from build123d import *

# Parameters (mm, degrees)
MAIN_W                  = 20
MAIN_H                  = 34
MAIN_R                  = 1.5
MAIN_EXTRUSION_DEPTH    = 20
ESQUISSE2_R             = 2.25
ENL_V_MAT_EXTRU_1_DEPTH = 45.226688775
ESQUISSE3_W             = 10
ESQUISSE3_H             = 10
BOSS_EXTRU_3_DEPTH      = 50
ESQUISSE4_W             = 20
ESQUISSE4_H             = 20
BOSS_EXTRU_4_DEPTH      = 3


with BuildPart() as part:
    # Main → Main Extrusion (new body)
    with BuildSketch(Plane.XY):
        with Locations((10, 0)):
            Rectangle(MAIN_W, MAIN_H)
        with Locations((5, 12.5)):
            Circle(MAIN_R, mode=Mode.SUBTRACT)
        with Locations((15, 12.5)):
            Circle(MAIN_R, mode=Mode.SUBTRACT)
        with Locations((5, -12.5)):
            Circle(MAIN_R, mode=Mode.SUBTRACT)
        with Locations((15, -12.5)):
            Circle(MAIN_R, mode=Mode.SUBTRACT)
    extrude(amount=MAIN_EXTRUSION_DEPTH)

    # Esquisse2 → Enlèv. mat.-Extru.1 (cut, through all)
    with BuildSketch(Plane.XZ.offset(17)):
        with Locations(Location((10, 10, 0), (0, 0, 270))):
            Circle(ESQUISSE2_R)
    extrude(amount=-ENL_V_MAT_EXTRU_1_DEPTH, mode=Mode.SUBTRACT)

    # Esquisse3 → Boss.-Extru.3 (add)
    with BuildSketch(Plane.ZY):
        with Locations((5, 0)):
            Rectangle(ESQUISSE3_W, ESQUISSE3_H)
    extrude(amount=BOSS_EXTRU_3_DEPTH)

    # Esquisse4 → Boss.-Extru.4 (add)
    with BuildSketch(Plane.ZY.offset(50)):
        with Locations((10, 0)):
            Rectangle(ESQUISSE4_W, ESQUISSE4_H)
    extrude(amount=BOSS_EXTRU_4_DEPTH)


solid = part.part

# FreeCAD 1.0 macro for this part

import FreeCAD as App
import Part
import Sketcher


def add_polygon(sketch, points):
    """Adds a closed chain of lines whose ends are joined by coincident constraints."""
    first, n = sketch.GeometryCount, len(points)
    for a, b in zip(points, points[1:] + points[:1]):
        sketch.addGeometry(Part.LineSegment(App.Vector(*a, 0), App.Vector(*b, 0)), False)
    for i in range(n):
        sketch.addConstraint(Sketcher.Constraint("Coincident", first + i, 2, first + (i + 1) % n, 1))

doc = App.newDocument("Part")
body = doc.addObject("PartDesign::Body", "Body")

# Sketch on XY plane
sketch1 = body.newObject("Sketcher::SketchObject", "Sketch")
sketch1.AttachmentSupport = (doc.getObject("XY_Plane"), [""])
sketch1.MapMode = "FlatFace"
add_polygon(sketch1, [(0, 17), (0, -17), (20, -17), (20, 17)])  # lines 0-3
sketch1.addGeometry(Part.Circle(App.Vector(5, -12.5, 0), App.Vector(0, 0, 1), 1.5), False)  # 4
sketch1.addGeometry(Part.Circle(App.Vector(15, -12.5, 0), App.Vector(0, 0, 1), 1.5), False)  # 5
sketch1.addGeometry(Part.Circle(App.Vector(5, 12.5, 0), App.Vector(0, 0, 1), 1.5), False)  # 6
sketch1.addGeometry(Part.Circle(App.Vector(15, 12.5, 0), App.Vector(0, 0, 1), 1.5), False)  # 7
sketch1.addConstraint(Sketcher.Constraint("Vertical", 0))
sketch1.addConstraint(Sketcher.Constraint("Horizontal", 1))
sketch1.addConstraint(Sketcher.Constraint("Vertical", 2))
sketch1.addConstraint(Sketcher.Constraint("Horizontal", 3))
sketch1.addConstraint(Sketcher.Constraint("Equal", 4, 5))
sketch1.addConstraint(Sketcher.Constraint("Equal", 5, 6))
sketch1.addConstraint(Sketcher.Constraint("Equal", 6, 7))
sketch1.addConstraint(Sketcher.Constraint("Symmetric", 0, 2, 3, 2, -1, 1))
sketch1.addConstraint(Sketcher.Constraint("Symmetric", 4, 3, 6, 3, -1))
sketch1.addConstraint(Sketcher.Constraint("Symmetric", 5, 3, 7, 3, -1))
sketch1.addConstraint(Sketcher.Constraint("Horizontal", 4, 3, 5, 3))
sketch1.addConstraint(Sketcher.Constraint("Diameter", 4, 3.0))
sketch1.addConstraint(Sketcher.Constraint("DistanceX", 1, 1, 1, 2, 20.0))
sketch1.addConstraint(Sketcher.Constraint("DistanceY", 0, 2, 0, 1, 34.0))
sketch1.addConstraint(Sketcher.Constraint("DistanceX", -1, 1, 4, 3, 5.0))
sketch1.addConstraint(Sketcher.Constraint("DistanceX", -1, 1, 5, 3, 15.0))
sketch1.addConstraint(Sketcher.Constraint("DistanceY", 4, 3, 6, 3, 25.0))
pad1 = body.newObject("PartDesign::Pad", "Pad")
pad1.Profile = sketch1
pad1.Length = 20

# Sketch on XZ plane
sketch2 = body.newObject("Sketcher::SketchObject", "Sketch001")
sketch2.AttachmentSupport = (doc.getObject("XZ_Plane"), [""])
sketch2.MapMode = "FlatFace"
sketch2.AttachmentOffset = App.Placement(App.Vector(0, 0, 17), App.Rotation())
sketch2.addGeometry(Part.Circle(App.Vector(10, 10, 0), App.Vector(0, 0, 1), 2.2), False)
sketch2.addConstraint(Sketcher.Constraint("Diameter", 0, 4.5))
sketch2.addConstraint(Sketcher.Constraint("DistanceX", -1, 1, 0, 3, 10.0))
sketch2.addConstraint(Sketcher.Constraint("DistanceY", -1, 1, 0, 3, 10.0))
pocket1 = body.newObject("PartDesign::Pocket", "Pocket")
pocket1.Profile = sketch2
pocket1.Type = "ThroughAll"

# Sketch on YZ plane
sketch3 = body.newObject("Sketcher::SketchObject", "Sketch002")
sketch3.AttachmentSupport = (doc.getObject("YZ_Plane"), [""])
sketch3.MapMode = "FlatFace"
add_polygon(sketch3, [(5, 0), (-5, 0), (-5, 10), (5, 10)])  # lines 0-3
sketch3.addConstraint(Sketcher.Constraint("Horizontal", 0))
sketch3.addConstraint(Sketcher.Constraint("Vertical", 1))
sketch3.addConstraint(Sketcher.Constraint("Horizontal", 2))
sketch3.addConstraint(Sketcher.Constraint("Vertical", 3))
sketch3.addConstraint(Sketcher.Constraint("Symmetric", 0, 2, 3, 2, -1, 1))
sketch3.addConstraint(Sketcher.Constraint("Equal", 2, 1))
sketch3.addConstraint(Sketcher.Constraint("DistanceX", 0, 2, 0, 1, 10.0))
pad2 = body.newObject("PartDesign::Pad", "Pad001")
pad2.Profile = sketch3
pad2.Length = 50
pad2.Reversed = True

# Sketch on YZ plane
sketch4 = body.newObject("Sketcher::SketchObject", "Sketch003")
sketch4.AttachmentSupport = (doc.getObject("YZ_Plane"), [""])
sketch4.MapMode = "FlatFace"
sketch4.AttachmentOffset = App.Placement(App.Vector(0, 0, -50), App.Rotation())
add_polygon(sketch4, [(10, 0), (-10, 0), (-10, 20), (10, 20)])  # lines 0-3
sketch4.addConstraint(Sketcher.Constraint("Horizontal", 0))
sketch4.addConstraint(Sketcher.Constraint("Vertical", 1))
sketch4.addConstraint(Sketcher.Constraint("Horizontal", 2))
sketch4.addConstraint(Sketcher.Constraint("Vertical", 3))
sketch4.addConstraint(Sketcher.Constraint("Symmetric", 0, 2, 3, 2, -1, 1))
sketch4.addConstraint(Sketcher.Constraint("Equal", 2, 1))
sketch4.addConstraint(Sketcher.Constraint("DistanceX", 0, 2, 0, 1, 20.0))
pad3 = body.newObject("PartDesign::Pad", "Pad002")
pad3.Profile = sketch4
pad3.Length = 3
pad3.Reversed = True

doc.recompute()
